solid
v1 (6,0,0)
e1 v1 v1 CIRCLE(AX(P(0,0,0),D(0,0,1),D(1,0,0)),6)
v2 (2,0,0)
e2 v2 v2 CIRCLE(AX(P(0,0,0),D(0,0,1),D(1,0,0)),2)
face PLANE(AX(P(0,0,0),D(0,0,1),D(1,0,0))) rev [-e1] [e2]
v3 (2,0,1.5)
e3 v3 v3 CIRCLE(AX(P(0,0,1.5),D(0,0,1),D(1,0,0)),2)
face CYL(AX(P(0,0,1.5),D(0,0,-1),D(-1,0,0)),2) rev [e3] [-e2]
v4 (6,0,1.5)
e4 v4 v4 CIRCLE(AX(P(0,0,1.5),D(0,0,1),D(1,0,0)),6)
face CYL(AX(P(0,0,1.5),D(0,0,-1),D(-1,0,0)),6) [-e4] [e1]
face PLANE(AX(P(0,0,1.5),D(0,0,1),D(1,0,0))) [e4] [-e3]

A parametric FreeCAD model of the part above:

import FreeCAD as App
import Part
import Sketcher
Q = App.Units.Quantity

doc = App.newDocument("Part")
body = doc.addObject("PartDesign::Body", "Body")

# Sketch on XY plane
sketch1 = body.newObject("Sketcher::SketchObject", "Sketch")
sketch1.AttachmentSupport = (doc.getObject("XY_Plane"), [""])
sketch1.MapMode = "FlatFace"
sketch1.addGeometry([
    Part.Circle(App.Vector(0, 0, 0), App.Vector(0, 0, 1), 6),
    Part.Circle(App.Vector(0, 0, 0), App.Vector(0, 0, 1), 2),
], False)
sketch1.addConstraint([
    Sketcher.Constraint("Coincident", 0, 3, -1, 1),
    Sketcher.Constraint("Coincident", 1, 3, -1, 1),
    Sketcher.Constraint("Diameter", 0, Q("12 mm")),
    Sketcher.Constraint("Diameter", 1, Q("4 mm")),
])
pad1 = body.newObject("PartDesign::Pad", "Pad")
pad1.Profile = sketch1
pad1.Length = 1.5

doc.recompute()
